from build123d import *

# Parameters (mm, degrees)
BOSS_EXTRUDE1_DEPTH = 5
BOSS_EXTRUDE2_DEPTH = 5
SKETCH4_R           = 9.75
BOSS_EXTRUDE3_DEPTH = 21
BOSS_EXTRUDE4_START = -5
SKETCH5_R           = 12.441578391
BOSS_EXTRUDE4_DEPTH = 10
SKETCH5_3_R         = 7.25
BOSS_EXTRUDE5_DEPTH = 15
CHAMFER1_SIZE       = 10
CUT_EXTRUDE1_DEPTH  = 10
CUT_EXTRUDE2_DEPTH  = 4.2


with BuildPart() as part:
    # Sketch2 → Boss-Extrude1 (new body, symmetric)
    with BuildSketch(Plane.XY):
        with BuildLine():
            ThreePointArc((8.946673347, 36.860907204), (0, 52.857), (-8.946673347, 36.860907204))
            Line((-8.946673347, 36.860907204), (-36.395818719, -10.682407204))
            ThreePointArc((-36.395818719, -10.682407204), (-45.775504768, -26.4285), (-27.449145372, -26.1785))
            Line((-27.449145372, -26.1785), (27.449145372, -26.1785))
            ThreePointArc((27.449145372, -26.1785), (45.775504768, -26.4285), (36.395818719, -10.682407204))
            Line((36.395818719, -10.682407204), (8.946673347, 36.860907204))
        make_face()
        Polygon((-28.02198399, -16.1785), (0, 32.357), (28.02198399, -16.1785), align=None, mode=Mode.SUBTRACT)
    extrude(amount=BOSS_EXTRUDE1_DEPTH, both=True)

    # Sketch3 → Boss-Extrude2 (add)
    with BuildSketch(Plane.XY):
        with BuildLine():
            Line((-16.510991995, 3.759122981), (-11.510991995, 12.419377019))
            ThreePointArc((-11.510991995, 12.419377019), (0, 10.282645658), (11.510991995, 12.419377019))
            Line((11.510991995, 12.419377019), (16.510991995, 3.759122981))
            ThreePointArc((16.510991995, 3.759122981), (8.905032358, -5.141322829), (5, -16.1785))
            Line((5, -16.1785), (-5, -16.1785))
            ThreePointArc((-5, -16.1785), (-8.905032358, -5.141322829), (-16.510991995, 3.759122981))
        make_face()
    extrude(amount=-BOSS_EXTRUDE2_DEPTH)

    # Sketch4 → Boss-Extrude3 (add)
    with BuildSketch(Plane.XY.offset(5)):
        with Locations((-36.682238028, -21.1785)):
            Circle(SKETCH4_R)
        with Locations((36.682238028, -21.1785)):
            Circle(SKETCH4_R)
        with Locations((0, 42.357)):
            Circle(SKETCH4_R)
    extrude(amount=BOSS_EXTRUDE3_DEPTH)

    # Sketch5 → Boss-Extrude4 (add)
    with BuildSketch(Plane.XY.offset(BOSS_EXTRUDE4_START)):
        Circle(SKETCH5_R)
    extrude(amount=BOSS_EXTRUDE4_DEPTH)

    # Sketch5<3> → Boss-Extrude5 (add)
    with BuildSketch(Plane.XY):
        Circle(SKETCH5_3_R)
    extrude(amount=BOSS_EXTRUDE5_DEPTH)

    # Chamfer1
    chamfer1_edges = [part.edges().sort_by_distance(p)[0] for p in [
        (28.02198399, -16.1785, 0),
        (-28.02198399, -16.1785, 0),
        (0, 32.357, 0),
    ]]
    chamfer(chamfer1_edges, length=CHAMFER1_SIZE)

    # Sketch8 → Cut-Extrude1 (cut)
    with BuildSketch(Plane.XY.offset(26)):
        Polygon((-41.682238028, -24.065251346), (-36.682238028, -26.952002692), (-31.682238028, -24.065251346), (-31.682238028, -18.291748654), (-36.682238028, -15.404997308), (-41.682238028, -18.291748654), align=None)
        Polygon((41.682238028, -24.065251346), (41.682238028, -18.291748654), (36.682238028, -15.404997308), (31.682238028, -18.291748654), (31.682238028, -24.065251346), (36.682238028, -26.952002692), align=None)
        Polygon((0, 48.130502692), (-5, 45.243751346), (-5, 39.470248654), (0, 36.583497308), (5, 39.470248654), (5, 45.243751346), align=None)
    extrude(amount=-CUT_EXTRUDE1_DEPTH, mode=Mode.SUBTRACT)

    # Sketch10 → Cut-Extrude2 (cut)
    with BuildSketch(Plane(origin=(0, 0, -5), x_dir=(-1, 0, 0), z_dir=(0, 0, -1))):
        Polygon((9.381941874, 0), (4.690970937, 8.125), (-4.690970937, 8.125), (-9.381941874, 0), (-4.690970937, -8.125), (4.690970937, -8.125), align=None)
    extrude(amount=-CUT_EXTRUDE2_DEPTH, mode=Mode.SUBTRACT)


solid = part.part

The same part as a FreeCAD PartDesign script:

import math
import FreeCAD as App
import Part
import Sketcher
Q = App.Units.Quantity


def edges_at(feature, points):
    """Names of the edges that pass closest to the given points."""
    edges = feature.Shape.Edges
    near = lambda p: min(range(len(edges)), key=lambda i: edges[i].distToShape(Part.Vertex(*p))[0])
    return sorted({f"Edge{near(p) + 1}" for p in points})


def add_polygon(sketch, points):
    """Adds a closed chain of lines whose ends are joined by coincident constraints."""
    first, n = sketch.GeometryCount, len(points)
    for a, b in zip(points, points[1:] + points[:1]):
        sketch.addGeometry(Part.LineSegment(App.Vector(*a, 0), App.Vector(*b, 0)), False)
    for i in range(n):
        sketch.addConstraint(Sketcher.Constraint("Coincident", first + i, 2, first + (i + 1) % n, 1))

doc = App.newDocument("Part")
body = doc.addObject("PartDesign::Body", "Body")

# Sketch on XY plane
sketch1 = doc.addObject("Sketcher::SketchObject", "Sketch")
body.addObject(sketch1)
sketch1.AttachmentSupport = (doc.XY_Plane, [""])
sketch1.MapMode = "FlatFace"
sketch1.addGeometry(Part.ArcOfCircle(Part.Circle(App.Vector(0, 42, 0), App.Vector(0, 0, 1), 10), math.radians(-32), math.radians(212)), False)  # 0
sketch1.addGeometry(Part.LineSegment(App.Vector(-9, 37, 0), App.Vector(-36, -11, 0)), False)  # 1
sketch1.addGeometry(Part.ArcOfCircle(Part.Circle(App.Vector(-37, -21, 0), App.Vector(0, 0, 1), 10), math.radians(88), math.radians(332)), False)  # 2
sketch1.addGeometry(Part.LineSegment(App.Vector(-27, -26, 0), App.Vector(27, -26, 0)), False)  # 3
sketch1.addGeometry(Part.ArcOfCircle(Part.Circle(App.Vector(37, -21, 0), App.Vector(0, 0, 1), 10), math.radians(-152), math.radians(92)), False)  # 4
sketch1.addGeometry(Part.LineSegment(App.Vector(36, -11, 0), App.Vector(9, 37, 0)), False)  # 5
add_polygon(sketch1, [(28, -16), (-28, -16), (0, 32)])  # lines 6-8
sketch1.addConstraint(Sketcher.Constraint("Coincident", 0, 2, 1, 1))
sketch1.addConstraint(Sketcher.Constraint("Coincident", 1, 2, 2, 1))
sketch1.addConstraint(Sketcher.Constraint("Coincident", 2, 2, 3, 1))
sketch1.addConstraint(Sketcher.Constraint("Coincident", 3, 2, 4, 1))
sketch1.addConstraint(Sketcher.Constraint("Coincident", 4, 2, 5, 1))
sketch1.addConstraint(Sketcher.Constraint("Coincident", 5, 2, 0, 1))
sketch1.addConstraint(Sketcher.Constraint("Horizontal", 3))
sketch1.addConstraint(Sketcher.Constraint("Horizontal", 6))
sketch1.addConstraint(Sketcher.Constraint("Equal", 0, 2))
sketch1.addConstraint(Sketcher.Constraint("Equal", 2, 4))
sketch1.addConstraint(Sketcher.Constraint("Symmetric", 2, 3, 4, 3, -2))
sketch1.addConstraint(Sketcher.Constraint("Symmetric", 0, 2, 5, 2, -2))
sketch1.addConstraint(Sketcher.Constraint("PointOnObject", 7, 2, -2))
sketch1.addConstraint(Sketcher.Constraint("Parallel", 1, 7))
sketch1.addConstraint(Sketcher.Constraint("Parallel", 5, 8))
sketch1.addConstraint(Sketcher.Constraint("Horizontal", 1, 2, 4, 2))
sketch1.addConstraint(Sketcher.Constraint("Radius", 0, 10.5))
sketch1.addConstraint(Sketcher.Constraint("Angle", 1, Q("-120 deg")))
sketch1.addConstraint(Sketcher.Constraint("DistanceY", 2, 2, 2, 3, 5.0))
sketch1.addConstraint(Sketcher.Constraint("DistanceY", 2, 3, 6, 2, 5.0))
sketch1.addConstraint(Sketcher.Constraint("DistanceY", 7, 2, 0, 3, 10.0))
sketch1.addConstraint(Sketcher.Constraint("DistanceY", -1, 1, 0, 3, 42.357))
sketch1.addConstraint(Sketcher.Constraint("DistanceX", 3, 1, 3, 2, 54.898291))
sketch1.addConstraint(Sketcher.Constraint("DistanceY", 2, 3, -1, 1, 21.1785))
sketch1.addConstraint(Sketcher.Constraint("Distance", 1, 54.898291))
pad1 = doc.addObject("PartDesign::Pad", "Pad")
body.addObject(pad1)
pad1.Profile = sketch1
pad1.Length = 10
pad1.Midplane = True

# Sketch on XY plane
sketch2 = doc.addObject("Sketcher::SketchObject", "Sketch001")
body.addObject(sketch2)
sketch2.AttachmentSupport = (doc.XY_Plane, [""])
sketch2.MapMode = "FlatFace"
sketch2.addGeometry(Part.LineSegment(App.Vector(-12, 12, 0), App.Vector(-17, 4, 0)), False)
sketch2.addGeometry(Part.ArcOfCircle(Part.Circle(App.Vector(-37, -21, 0), App.Vector(0, 0, 1), 32), math.radians(9), math.radians(51)), False)
sketch2.addGeometry(Part.LineSegment(App.Vector(-5, -16, 0), App.Vector(5, -16, 0)), False)
sketch2.addGeometry(Part.ArcOfCircle(Part.Circle(App.Vector(37, -21, 0), App.Vector(0, 0, 1), 32), math.radians(129), math.radians(171)), False)
sketch2.addGeometry(Part.LineSegment(App.Vector(17, 4, 0), App.Vector(12, 12, 0)), False)
sketch2.addGeometry(Part.ArcOfCircle(Part.Circle(App.Vector(0, 42, 0), App.Vector(0, 0, 1), 32), math.radians(-111), math.radians(-69)), False)
sketch2.addConstraint(Sketcher.Constraint("Coincident", 0, 2, 1, 2))
sketch2.addConstraint(Sketcher.Constraint("Coincident", 1, 1, 2, 1))
sketch2.addConstraint(Sketcher.Constraint("Coincident", 2, 2, 3, 2))
sketch2.addConstraint(Sketcher.Constraint("Coincident", 3, 1, 4, 1))
sketch2.addConstraint(Sketcher.Constraint("Coincident", 4, 2, 5, 2))
sketch2.addConstraint(Sketcher.Constraint("Coincident", 5, 1, 0, 1))
sketch2.addConstraint(Sketcher.Constraint("Horizontal", 2))
sketch2.addConstraint(Sketcher.Constraint("Equal", 1, 3))
sketch2.addConstraint(Sketcher.Constraint("Equal", 3, 5))
sketch2.addConstraint(Sketcher.Constraint("Symmetric", 1, 3, 3, 3, -2))
sketch2.addConstraint(Sketcher.Constraint("Symmetric", 4, 2, 5, 1, -2))
sketch2.addConstraint(Sketcher.Constraint("Horizontal", 0, 2, 3, 1))
sketch2.addConstraint(Sketcher.Constraint("DistanceX", 2, 1, 2, 2, 10.0))
sketch2.addConstraint(Sketcher.Constraint("Angle", 0, Q("-120 deg")))
sketch2.addConstraint(Sketcher.Constraint("Distance", 0, 10.0))
sketch2.addConstraint(Sketcher.Constraint("DistanceY", 1, 3, 1, 1, 5.0))
sketch2.addConstraint(Sketcher.Constraint("DistanceY", -1, 1, 5, 3, 42.357))
sketch2.addConstraint(Sketcher.Constraint("Radius", 1, 32.074354))
sketch2.addConstraint(Sketcher.Constraint("DistanceY", 1, 3, -1, 1, 21.1785))
pad2 = doc.addObject("PartDesign::Pad", "Pad001")
body.addObject(pad2)
pad2.Profile = sketch2
pad2.Length = 5
pad2.Reversed = True

# Sketch on XY plane
sketch3 = doc.addObject("Sketcher::SketchObject", "Sketch002")
body.addObject(sketch3)
sketch3.AttachmentSupport = (doc.XY_Plane, [""])
sketch3.MapMode = "FlatFace"
sketch3.AttachmentOffset = App.Placement(App.Vector(0, 0, 5), App.Rotation())
sketch3.addGeometry(Part.Circle(App.Vector(-37, -21, 0), App.Vector(0, 0, 1), 10), False)
sketch3.addGeometry(Part.Circle(App.Vector(37, -21, 0), App.Vector(0, 0, 1), 10), False)
sketch3.addGeometry(Part.Circle(App.Vector(0, 42, 0), App.Vector(0, 0, 1), 10), False)
sketch3.addConstraint(Sketcher.Constraint("Equal", 0, 1))
sketch3.addConstraint(Sketcher.Constraint("Equal", 1, 2))
sketch3.addConstraint(Sketcher.Constraint("Symmetric", 0, 3, 1, 3, -2))
sketch3.addConstraint(Sketcher.Constraint("PointOnObject", 2, 3, -2))
sketch3.addConstraint(Sketcher.Constraint("Diameter", 0, 19.5))
sketch3.addConstraint(Sketcher.Constraint("DistanceY", -1, 1, 2, 3, 42.357))
sketch3.addConstraint(Sketcher.Constraint("DistanceY", 0, 3, -1, 1, 21.1785))
sketch3.addConstraint(Sketcher.Constraint("DistanceX", 0, 3, -1, 1, 36.682238))
pad3 = doc.addObject("PartDesign::Pad", "Pad002")
body.addObject(pad3)
pad3.Profile = sketch3
pad3.Length = 21

# Sketch on XY plane
sketch4 = doc.addObject("Sketcher::SketchObject", "Sketch003")
body.addObject(sketch4)
sketch4.AttachmentSupport = (doc.XY_Plane, [""])
sketch4.MapMode = "FlatFace"
sketch4.AttachmentOffset = App.Placement(App.Vector(0, 0, -5), App.Rotation())
sketch4.addGeometry(Part.Circle(App.Vector(0, 0, 0), App.Vector(0, 0, 1), 12), False)
sketch4.addConstraint(Sketcher.Constraint("Coincident", 0, 3, -1, 1))
sketch4.addConstraint(Sketcher.Constraint("Diameter", 0, 24.883157))
pad4 = doc.addObject("PartDesign::Pad", "Pad003")
body.addObject(pad4)
pad4.Profile = sketch4
pad4.Length = 10

# Sketch on XY plane
sketch5 = doc.addObject("Sketcher::SketchObject", "Sketch004")
body.addObject(sketch5)
sketch5.AttachmentSupport = (doc.XY_Plane, [""])
sketch5.MapMode = "FlatFace"
sketch5.addGeometry(Part.Circle(App.Vector(0, 0, 0), App.Vector(0, 0, 1), 7), False)
sketch5.addConstraint(Sketcher.Constraint("Coincident", 0, 3, -1, 1))
sketch5.addConstraint(Sketcher.Constraint("Diameter", 0, 14.5))
pad5 = doc.addObject("PartDesign::Pad", "Pad004")
body.addObject(pad5)
pad5.Profile = sketch5
pad5.Length = 15
doc.recompute()

chamfer = doc.addObject("PartDesign::Chamfer", "Chamfer")
body.addObject(chamfer)
chamfer.Base = (pad5, edges_at(pad5, [(28.022, -16.178, 0), (-28.022, -16.178, 0), (0, 32.357, 0)]))
chamfer.Size = 10

# Sketch on XY plane
sketch6 = doc.addObject("Sketcher::SketchObject", "Sketch005")
body.addObject(sketch6)
sketch6.AttachmentSupport = (doc.XY_Plane, [""])
sketch6.MapMode = "FlatFace"
sketch6.AttachmentOffset = App.Placement(App.Vector(0, 0, 26), App.Rotation())
add_polygon(sketch6, [(-42, -24), (-37, -27), (-32, -24), (-32, -18), (-37, -15), (-42, -18)])  # lines 0-5
add_polygon(sketch6, [(42, -24), (42, -18), (37, -15), (32, -18), (32, -24), (37, -27)])  # lines 6-11
add_polygon(sketch6, [(0, 48), (-5, 45), (-5, 39), (0, 37), (5, 39), (5, 45)])  # lines 12-17
sketch6.addConstraint(Sketcher.Constraint("Vertical", 2))
sketch6.addConstraint(Sketcher.Constraint("Vertical", 5))
sketch6.addConstraint(Sketcher.Constraint("Vertical", 6))
sketch6.addConstraint(Sketcher.Constraint("Vertical", 9))
sketch6.addConstraint(Sketcher.Constraint("Vertical", 13))
sketch6.addConstraint(Sketcher.Constraint("Vertical", 16))
sketch6.addConstraint(Sketcher.Constraint("Symmetric", 4, 2, 6, 2, -2))
sketch6.addConstraint(Sketcher.Constraint("Symmetric", 3, 2, 7, 2, -2))
sketch6.addConstraint(Sketcher.Constraint("Symmetric", 2, 2, 8, 2, -2))
sketch6.addConstraint(Sketcher.Constraint("Symmetric", 0, 2, 10, 2, -2))
sketch6.addConstraint(Sketcher.Constraint("Symmetric", 13, 2, 15, 2, -2))
sketch6.addConstraint(Sketcher.Constraint("PointOnObject", 14, 2, -2))
sketch6.addConstraint(Sketcher.Constraint("PointOnObject", 17, 2, -2))
sketch6.addConstraint(Sketcher.Constraint("Parallel", 0, 3))
sketch6.addConstraint(Sketcher.Constraint("Parallel", 1, 4))
sketch6.addConstraint(Sketcher.Constraint("Parallel", 3, 7))
sketch6.addConstraint(Sketcher.Constraint("Parallel", 7, 10))
sketch6.addConstraint(Sketcher.Constraint("Parallel", 8, 11))
sketch6.addConstraint(Sketcher.Constraint("Parallel", 11, 12))
sketch6.addConstraint(Sketcher.Constraint("Parallel", 10, 14))
sketch6.addConstraint(Sketcher.Constraint("Parallel", 14, 17))
sketch6.addConstraint(Sketcher.Constraint("Horizontal", 2, 2, 4, 2))
sketch6.addConstraint(Sketcher.Constraint("Horizontal", 1, 2, 5, 2))
sketch6.addConstraint(Sketcher.Constraint("Equal", 9, 13))
sketch6.addConstraint(Sketcher.Constraint("Equal", 11, 12))
sketch6.addConstraint(Sketcher.Constraint("Angle", 0, Q("-30 deg")))
sketch6.addConstraint(Sketcher.Constraint("DistanceX", 12, 2, -1, 1, 5.0))
sketch6.addConstraint(Sketcher.Constraint("DistanceY", 2, 2, 12, 2, 63.5355))
sketch6.addConstraint(Sketcher.Constraint("DistanceY", 2, 1, 2, 2, 5.773503))
sketch6.addConstraint(Sketcher.Constraint("DistanceX", 0, 2, -1, 1, 36.682238))
sketch6.addConstraint(Sketcher.Constraint("DistanceY", 1, 2, -1, 1, 24.065251))
pocket1 = doc.addObject("PartDesign::Pocket", "Pocket")
body.addObject(pocket1)
pocket1.Profile = sketch6
pocket1.Length = 10

# Sketch on XY plane
sketch7 = doc.addObject("Sketcher::SketchObject", "Sketch006")
body.addObject(sketch7)
sketch7.AttachmentSupport = (doc.XY_Plane, [""])
sketch7.MapMode = "FlatFace"
sketch7.AttachmentOffset = App.Placement(App.Vector(0, 0, -5), App.Rotation())
add_polygon(sketch7, [(-9, 0), (-5, 8), (5, 8), (9, 0), (5, -8), (-5, -8)])  # lines 0-5
sketch7.addConstraint(Sketcher.Constraint("Horizontal", 1))
sketch7.addConstraint(Sketcher.Constraint("Horizontal", 4))
sketch7.addConstraint(Sketcher.Constraint("Symmetric", 0, 2, 3, 2, -1, 1))
sketch7.addConstraint(Sketcher.Constraint("Symmetric", 2, 2, 5, 2, -1, 1))
sketch7.addConstraint(Sketcher.Constraint("PointOnObject", 2, 2, -1))
sketch7.addConstraint(Sketcher.Constraint("Parallel", 2, 5))
sketch7.addConstraint(Sketcher.Constraint("Vertical", 1, 2, 3, 2))
sketch7.addConstraint(Sketcher.Constraint("Angle", 0, Q("60 deg")))
sketch7.addConstraint(Sketcher.Constraint("DistanceY", 3, 2, 1, 2, 16.25))
sketch7.addConstraint(Sketcher.Constraint("DistanceX", 1, 1, 1, 2, 9.381942))
pocket2 = doc.addObject("PartDesign::Pocket", "Pocket001")
body.addObject(pocket2)
pocket2.Profile = sketch7
pocket2.Length = 4.2
pocket2.Reversed = True

doc.recompute()
